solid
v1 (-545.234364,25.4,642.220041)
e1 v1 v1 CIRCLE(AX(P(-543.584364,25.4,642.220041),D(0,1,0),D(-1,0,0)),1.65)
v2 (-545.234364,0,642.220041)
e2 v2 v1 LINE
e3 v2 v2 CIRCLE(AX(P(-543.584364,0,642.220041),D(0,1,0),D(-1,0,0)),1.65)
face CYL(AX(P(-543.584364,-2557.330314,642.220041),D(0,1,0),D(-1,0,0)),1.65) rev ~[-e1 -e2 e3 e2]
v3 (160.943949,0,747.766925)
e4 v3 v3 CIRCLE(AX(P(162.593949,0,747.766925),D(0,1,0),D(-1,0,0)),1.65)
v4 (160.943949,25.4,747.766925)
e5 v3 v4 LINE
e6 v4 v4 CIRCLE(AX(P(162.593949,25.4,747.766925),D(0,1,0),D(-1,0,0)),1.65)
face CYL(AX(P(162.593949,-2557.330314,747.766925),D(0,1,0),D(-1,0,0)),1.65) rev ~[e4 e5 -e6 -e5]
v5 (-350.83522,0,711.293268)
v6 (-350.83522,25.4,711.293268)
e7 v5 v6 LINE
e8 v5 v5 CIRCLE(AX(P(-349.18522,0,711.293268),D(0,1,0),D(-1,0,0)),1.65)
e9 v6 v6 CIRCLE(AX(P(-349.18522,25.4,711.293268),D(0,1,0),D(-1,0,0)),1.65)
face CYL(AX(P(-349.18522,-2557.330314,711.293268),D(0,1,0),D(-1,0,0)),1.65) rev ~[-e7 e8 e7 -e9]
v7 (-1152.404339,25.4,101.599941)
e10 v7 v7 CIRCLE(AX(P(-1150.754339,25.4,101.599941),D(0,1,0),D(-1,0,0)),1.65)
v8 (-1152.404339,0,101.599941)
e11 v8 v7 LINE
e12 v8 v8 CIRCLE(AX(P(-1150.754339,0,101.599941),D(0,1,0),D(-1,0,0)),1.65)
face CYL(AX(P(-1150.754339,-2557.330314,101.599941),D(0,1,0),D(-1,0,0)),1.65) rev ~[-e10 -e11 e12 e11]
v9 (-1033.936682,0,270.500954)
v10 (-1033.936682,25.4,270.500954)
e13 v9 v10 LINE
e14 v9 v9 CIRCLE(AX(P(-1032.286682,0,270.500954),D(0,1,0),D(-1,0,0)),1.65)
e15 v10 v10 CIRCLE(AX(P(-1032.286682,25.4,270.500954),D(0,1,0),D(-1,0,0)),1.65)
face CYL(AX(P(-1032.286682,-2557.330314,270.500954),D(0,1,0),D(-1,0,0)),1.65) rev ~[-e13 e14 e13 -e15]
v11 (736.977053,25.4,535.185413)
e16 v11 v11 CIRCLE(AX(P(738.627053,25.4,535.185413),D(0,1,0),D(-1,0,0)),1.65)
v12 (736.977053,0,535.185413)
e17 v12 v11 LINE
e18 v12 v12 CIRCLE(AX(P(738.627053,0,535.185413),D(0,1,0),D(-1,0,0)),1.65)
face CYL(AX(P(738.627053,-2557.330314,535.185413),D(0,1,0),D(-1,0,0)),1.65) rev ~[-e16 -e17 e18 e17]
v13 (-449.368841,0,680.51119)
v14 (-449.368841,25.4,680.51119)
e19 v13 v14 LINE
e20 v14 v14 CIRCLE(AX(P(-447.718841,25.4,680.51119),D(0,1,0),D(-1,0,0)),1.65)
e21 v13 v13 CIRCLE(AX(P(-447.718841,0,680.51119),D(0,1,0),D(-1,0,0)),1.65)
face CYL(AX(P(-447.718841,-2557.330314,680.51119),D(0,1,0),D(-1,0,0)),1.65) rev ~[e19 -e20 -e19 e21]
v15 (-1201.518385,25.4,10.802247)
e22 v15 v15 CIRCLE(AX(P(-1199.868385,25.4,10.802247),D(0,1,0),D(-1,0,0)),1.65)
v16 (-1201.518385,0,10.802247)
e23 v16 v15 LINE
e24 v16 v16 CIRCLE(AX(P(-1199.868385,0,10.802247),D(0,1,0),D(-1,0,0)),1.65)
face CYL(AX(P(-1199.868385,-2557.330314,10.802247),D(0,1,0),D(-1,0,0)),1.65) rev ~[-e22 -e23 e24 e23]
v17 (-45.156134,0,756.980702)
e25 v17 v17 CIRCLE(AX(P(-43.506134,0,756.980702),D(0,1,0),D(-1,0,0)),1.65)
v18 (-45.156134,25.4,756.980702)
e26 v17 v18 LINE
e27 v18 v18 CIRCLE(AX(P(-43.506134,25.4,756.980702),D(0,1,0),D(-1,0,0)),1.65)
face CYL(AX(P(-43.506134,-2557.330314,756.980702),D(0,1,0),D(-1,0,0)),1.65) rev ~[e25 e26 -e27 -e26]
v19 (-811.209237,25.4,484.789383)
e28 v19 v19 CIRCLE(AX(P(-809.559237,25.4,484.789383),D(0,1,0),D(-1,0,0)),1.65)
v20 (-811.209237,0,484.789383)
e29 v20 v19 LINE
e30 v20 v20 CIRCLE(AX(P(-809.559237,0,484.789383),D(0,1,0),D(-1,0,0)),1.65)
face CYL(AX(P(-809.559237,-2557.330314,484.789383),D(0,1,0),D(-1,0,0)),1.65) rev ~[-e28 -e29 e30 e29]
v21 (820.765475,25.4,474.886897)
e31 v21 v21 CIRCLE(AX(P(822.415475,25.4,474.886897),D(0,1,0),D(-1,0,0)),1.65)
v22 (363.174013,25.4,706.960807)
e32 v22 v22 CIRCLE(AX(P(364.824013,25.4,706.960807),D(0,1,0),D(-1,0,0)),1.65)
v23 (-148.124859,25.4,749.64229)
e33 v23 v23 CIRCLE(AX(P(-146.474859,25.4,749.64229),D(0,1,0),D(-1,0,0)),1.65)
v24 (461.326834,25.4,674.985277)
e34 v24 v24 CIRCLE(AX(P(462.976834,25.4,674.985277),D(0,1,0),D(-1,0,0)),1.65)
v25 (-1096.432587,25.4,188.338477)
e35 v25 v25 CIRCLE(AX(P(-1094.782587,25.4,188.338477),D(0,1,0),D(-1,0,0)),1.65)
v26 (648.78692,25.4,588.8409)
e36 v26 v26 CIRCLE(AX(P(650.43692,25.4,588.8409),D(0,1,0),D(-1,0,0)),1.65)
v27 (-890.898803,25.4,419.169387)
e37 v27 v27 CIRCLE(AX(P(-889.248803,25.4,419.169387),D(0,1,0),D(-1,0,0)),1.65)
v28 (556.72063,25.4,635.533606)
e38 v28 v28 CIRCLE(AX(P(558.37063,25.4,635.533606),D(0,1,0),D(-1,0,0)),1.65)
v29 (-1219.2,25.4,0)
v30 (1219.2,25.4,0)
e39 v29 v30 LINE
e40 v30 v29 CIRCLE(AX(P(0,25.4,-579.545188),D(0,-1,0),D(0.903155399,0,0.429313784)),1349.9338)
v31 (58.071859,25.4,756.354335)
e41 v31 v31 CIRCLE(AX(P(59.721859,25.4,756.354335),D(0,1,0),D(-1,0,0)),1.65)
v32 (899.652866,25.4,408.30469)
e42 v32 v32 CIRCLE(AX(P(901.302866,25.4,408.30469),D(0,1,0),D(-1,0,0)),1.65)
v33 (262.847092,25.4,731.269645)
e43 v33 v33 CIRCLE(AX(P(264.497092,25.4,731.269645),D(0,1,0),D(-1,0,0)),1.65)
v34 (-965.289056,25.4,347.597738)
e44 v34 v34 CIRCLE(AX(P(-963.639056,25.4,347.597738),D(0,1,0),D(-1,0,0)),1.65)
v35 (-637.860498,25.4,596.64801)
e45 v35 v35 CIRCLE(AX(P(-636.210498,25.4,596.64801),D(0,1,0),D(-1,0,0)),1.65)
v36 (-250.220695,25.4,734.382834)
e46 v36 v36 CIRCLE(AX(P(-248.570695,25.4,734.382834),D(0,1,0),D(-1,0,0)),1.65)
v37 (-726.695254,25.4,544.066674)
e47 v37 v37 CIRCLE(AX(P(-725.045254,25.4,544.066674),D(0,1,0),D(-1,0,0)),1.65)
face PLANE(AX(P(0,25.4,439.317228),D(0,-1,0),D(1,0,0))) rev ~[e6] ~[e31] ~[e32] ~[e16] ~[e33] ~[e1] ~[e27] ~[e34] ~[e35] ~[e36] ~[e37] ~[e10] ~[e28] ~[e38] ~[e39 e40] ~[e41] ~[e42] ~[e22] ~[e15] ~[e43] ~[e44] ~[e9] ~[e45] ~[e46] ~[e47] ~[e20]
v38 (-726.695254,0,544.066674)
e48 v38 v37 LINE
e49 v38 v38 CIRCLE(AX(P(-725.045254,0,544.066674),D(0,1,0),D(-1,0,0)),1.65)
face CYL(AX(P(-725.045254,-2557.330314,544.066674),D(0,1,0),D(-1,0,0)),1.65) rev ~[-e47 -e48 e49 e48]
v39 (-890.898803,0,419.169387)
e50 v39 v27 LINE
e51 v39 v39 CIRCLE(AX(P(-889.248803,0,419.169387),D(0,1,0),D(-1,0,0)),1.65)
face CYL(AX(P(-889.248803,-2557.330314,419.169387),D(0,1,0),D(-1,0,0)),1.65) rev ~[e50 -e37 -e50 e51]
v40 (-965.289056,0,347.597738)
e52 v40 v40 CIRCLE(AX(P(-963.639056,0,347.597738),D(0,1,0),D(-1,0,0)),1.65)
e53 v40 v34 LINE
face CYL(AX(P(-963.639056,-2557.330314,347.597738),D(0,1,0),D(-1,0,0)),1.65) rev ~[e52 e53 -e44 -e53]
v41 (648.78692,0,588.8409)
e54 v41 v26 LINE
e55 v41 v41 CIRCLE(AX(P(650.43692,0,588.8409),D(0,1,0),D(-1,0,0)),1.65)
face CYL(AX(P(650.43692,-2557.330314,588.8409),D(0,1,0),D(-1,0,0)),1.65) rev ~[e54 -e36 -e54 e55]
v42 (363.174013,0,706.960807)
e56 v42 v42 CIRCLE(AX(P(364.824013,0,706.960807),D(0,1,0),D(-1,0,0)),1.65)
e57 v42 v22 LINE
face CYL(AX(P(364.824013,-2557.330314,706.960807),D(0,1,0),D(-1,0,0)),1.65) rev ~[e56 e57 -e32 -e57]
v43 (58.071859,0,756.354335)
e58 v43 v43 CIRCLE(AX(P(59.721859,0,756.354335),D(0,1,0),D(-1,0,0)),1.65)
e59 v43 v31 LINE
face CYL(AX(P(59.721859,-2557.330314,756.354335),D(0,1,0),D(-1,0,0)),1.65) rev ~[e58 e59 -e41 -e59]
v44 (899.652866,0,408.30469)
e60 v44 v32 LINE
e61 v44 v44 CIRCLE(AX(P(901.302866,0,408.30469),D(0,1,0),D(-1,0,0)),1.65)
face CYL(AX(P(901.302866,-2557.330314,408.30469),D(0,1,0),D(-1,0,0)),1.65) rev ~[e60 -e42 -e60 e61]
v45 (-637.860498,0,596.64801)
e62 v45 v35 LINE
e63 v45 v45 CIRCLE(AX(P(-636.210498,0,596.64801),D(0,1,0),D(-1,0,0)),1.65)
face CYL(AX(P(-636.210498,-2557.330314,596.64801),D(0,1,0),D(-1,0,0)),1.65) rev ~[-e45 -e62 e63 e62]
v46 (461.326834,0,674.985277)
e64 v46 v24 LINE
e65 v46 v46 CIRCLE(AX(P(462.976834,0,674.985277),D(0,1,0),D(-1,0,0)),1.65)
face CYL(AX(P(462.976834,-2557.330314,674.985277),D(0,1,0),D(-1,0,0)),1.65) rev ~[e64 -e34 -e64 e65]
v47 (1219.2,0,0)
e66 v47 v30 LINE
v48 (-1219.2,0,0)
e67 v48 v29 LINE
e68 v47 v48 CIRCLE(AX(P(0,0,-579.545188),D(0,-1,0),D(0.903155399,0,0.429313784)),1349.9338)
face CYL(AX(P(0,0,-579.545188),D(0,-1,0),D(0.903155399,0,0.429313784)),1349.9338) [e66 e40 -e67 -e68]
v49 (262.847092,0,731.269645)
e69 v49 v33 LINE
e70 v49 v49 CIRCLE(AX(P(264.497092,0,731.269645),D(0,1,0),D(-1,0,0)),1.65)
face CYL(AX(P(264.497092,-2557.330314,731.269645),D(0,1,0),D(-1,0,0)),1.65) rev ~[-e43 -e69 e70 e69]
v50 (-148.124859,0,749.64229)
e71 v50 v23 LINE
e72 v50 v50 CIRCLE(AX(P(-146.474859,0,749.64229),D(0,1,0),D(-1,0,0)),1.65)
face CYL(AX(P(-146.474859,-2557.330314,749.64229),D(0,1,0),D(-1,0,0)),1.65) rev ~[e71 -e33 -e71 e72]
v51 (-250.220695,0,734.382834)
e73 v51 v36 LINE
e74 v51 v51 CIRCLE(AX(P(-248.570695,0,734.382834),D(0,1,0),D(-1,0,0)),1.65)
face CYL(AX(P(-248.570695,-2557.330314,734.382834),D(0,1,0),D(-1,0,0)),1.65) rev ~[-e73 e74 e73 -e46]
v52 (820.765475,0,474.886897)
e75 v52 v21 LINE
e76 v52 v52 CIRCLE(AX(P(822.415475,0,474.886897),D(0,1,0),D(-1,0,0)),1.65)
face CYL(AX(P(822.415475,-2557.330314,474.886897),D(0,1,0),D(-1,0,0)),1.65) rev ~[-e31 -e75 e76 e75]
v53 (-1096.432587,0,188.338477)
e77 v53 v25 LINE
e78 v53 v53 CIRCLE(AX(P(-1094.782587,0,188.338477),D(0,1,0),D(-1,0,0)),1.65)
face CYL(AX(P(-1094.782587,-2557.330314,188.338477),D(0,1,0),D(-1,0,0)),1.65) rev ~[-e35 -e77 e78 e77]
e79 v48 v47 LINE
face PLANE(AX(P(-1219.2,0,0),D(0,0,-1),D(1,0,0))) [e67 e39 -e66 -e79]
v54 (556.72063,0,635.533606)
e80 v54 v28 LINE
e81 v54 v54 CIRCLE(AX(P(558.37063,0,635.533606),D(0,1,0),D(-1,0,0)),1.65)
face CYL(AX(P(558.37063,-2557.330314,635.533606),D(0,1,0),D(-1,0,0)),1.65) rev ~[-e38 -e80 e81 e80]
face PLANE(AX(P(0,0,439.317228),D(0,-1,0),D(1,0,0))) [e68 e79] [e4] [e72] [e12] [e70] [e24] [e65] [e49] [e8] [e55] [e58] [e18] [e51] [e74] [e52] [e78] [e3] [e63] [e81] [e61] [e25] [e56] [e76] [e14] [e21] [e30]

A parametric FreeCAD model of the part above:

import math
import FreeCAD as App
import Part
import Sketcher
from FreeCAD import Vector
Q = App.Units.Quantity

doc = App.newDocument("Part")
params = doc.addObject("Spreadsheet::Sheet", "Params")
for row, (alias, value) in enumerate([
    ("sketch1_width", "96 in"),
    ("sketch1_radius", "53.147 in"),
    ("pad1_length", "1 in"),
    ("hole_diameter", "3.3 mm"),
], start=1):
    params.set(f"A{row}", alias)
    params.set(f"B{row}", "=" + value)
    params.setAlias(f"B{row}", alias)

body = doc.addObject("PartDesign::Body", "Body")

# Sketch on XZ plane
sketch1 = doc.addObject("Sketcher::SketchObject", "Sketch")
body.addObject(sketch1)
sketch1.AttachmentSupport = (doc.XZ_Plane, [""])
sketch1.MapMode = "FlatFace"
sketch1.addGeometry(Part.ArcOfCircle(Part.Circle(Vector(0, -579.545188, 0), Vector(0, 0, 1), 1349.9338), math.radians(25.424019), math.radians(154.575981)), False)
sketch1.addGeometry(Part.LineSegment(Vector(-1219.2, 0, 0), Vector(1219.2, 0, 0)), False)
sketch1.addConstraint(Sketcher.Constraint("Coincident", 0, 1, 1, 2))
sketch1.addConstraint(Sketcher.Constraint("Coincident", 1, 1, 0, 2))
sketch1.addConstraint(Sketcher.Constraint("Horizontal", 1))
sketch1.addConstraint(Sketcher.Constraint("PointOnObject", 0, 3, -2))
sketch1.addConstraint(Sketcher.Constraint("PointOnObject", 1, 1, -1))
sketch1.addConstraint(Sketcher.Constraint("DistanceX", 1, 1, 1, 2, Q("96 in")))
sketch1.addConstraint(Sketcher.Constraint("Radius", 0, Q("53.147 in")))
sketch1.setExpression("Constraints[5]", "Params.sketch1_width")
sketch1.setExpression("Constraints[6]", "Params.sketch1_radius")
pad1 = doc.addObject("PartDesign::Pad", "Pad")
body.addObject(pad1)
pad1.Profile = sketch1
pad1.setExpression("Length", "Params.pad1_length")
pad1.Reversed = True

# Sketch on XZ plane
sketch2 = doc.addObject("Sketcher::SketchObject", "Sketch001")
body.addObject(sketch2)
sketch2.AttachmentSupport = (doc.XZ_Plane, [""])
sketch2.MapMode = "FlatFace"
sketch2.addGeometry(Part.Circle(Vector(-1199.868385, 10.802247, 0), Vector(0, 0, 1), 1.65), False)
sketch2.addGeometry(Part.Circle(Vector(-1150.754339, 101.599941, 0), Vector(0, 0, 1), 1.65), False)
sketch2.addGeometry(Part.Circle(Vector(-1094.782587, 188.338477, 0), Vector(0, 0, 1), 1.65), False)
sketch2.addGeometry(Part.Circle(Vector(-1032.286682, 270.500954, 0), Vector(0, 0, 1), 1.65), False)
sketch2.addGeometry(Part.Circle(Vector(-963.639056, 347.597738, 0), Vector(0, 0, 1), 1.65), False)
sketch2.addGeometry(Part.Circle(Vector(-889.248803, 419.169387, 0), Vector(0, 0, 1), 1.65), False)
sketch2.addGeometry(Part.Circle(Vector(-809.559237, 484.789383, 0), Vector(0, 0, 1), 1.65), False)
sketch2.addGeometry(Part.Circle(Vector(-725.045254, 544.066674, 0), Vector(0, 0, 1), 1.65), False)
sketch2.addGeometry(Part.Circle(Vector(-636.210498, 596.64801, 0), Vector(0, 0, 1), 1.65), False)
sketch2.addGeometry(Part.Circle(Vector(-543.584364, 642.220041, 0), Vector(0, 0, 1), 1.65), False)
sketch2.addGeometry(Part.Circle(Vector(-447.718841, 680.51119, 0), Vector(0, 0, 1), 1.65), False)
sketch2.addGeometry(Part.Circle(Vector(-349.18522, 711.293268, 0), Vector(0, 0, 1), 1.65), False)
sketch2.addGeometry(Part.Circle(Vector(-248.570695, 734.382834, 0), Vector(0, 0, 1), 1.65), False)
sketch2.addGeometry(Part.Circle(Vector(-146.474859, 749.64229, 0), Vector(0, 0, 1), 1.65), False)
sketch2.addGeometry(Part.Circle(Vector(-43.506134, 756.980702, 0), Vector(0, 0, 1), 1.65), False)
sketch2.addGeometry(Part.Circle(Vector(59.721859, 756.354335, 0), Vector(0, 0, 1), 1.65), False)
sketch2.addGeometry(Part.Circle(Vector(162.593949, 747.766925, 0), Vector(0, 0, 1), 1.65), False)
sketch2.addGeometry(Part.Circle(Vector(264.497092, 731.269645, 0), Vector(0, 0, 1), 1.65), False)
sketch2.addGeometry(Part.Circle(Vector(364.824013, 706.960807, 0), Vector(0, 0, 1), 1.65), False)
sketch2.addGeometry(Part.Circle(Vector(462.976834, 674.985277, 0), Vector(0, 0, 1), 1.65), False)
sketch2.addGeometry(Part.Circle(Vector(558.37063, 635.533606, 0), Vector(0, 0, 1), 1.65), False)
sketch2.addGeometry(Part.Circle(Vector(650.43692, 588.8409, 0), Vector(0, 0, 1), 1.65), False)
sketch2.addGeometry(Part.Circle(Vector(738.627053, 535.185413, 0), Vector(0, 0, 1), 1.65), False)
sketch2.addGeometry(Part.Circle(Vector(822.415475, 474.886897, 0), Vector(0, 0, 1), 1.65), False)
sketch2.addGeometry(Part.Circle(Vector(901.302866, 408.30469, 0), Vector(0, 0, 1), 1.65), False)
sketch2.addConstraint(Sketcher.Constraint("Equal", 0, 1))
sketch2.addConstraint(Sketcher.Constraint("Equal", 1, 2))
sketch2.addConstraint(Sketcher.Constraint("Equal", 2, 3))
sketch2.addConstraint(Sketcher.Constraint("Equal", 3, 4))
sketch2.addConstraint(Sketcher.Constraint("Equal", 4, 5))
sketch2.addConstraint(Sketcher.Constraint("Equal", 5, 6))
sketch2.addConstraint(Sketcher.Constraint("Equal", 6, 7))
sketch2.addConstraint(Sketcher.Constraint("Equal", 7, 8))
sketch2.addConstraint(Sketcher.Constraint("Equal", 8, 9))
sketch2.addConstraint(Sketcher.Constraint("Equal", 9, 10))
sketch2.addConstraint(Sketcher.Constraint("Equal", 10, 11))
sketch2.addConstraint(Sketcher.Constraint("Equal", 11, 12))
sketch2.addConstraint(Sketcher.Constraint("Equal", 12, 13))
sketch2.addConstraint(Sketcher.Constraint("Equal", 13, 14))
sketch2.addConstraint(Sketcher.Constraint("Equal", 14, 15))
sketch2.addConstraint(Sketcher.Constraint("Equal", 15, 16))
sketch2.addConstraint(Sketcher.Constraint("Equal", 16, 17))
sketch2.addConstraint(Sketcher.Constraint("Equal", 17, 18))
sketch2.addConstraint(Sketcher.Constraint("Equal", 18, 19))
sketch2.addConstraint(Sketcher.Constraint("Equal", 19, 20))
sketch2.addConstraint(Sketcher.Constraint("Equal", 20, 21))
sketch2.addConstraint(Sketcher.Constraint("Equal", 21, 22))
sketch2.addConstraint(Sketcher.Constraint("Equal", 22, 23))
sketch2.addConstraint(Sketcher.Constraint("Equal", 23, 24))
sketch2.addConstraint(Sketcher.Constraint("Diameter", 0, 3.3))
sketch2.addConstraint(Sketcher.Constraint("DistanceY", 8, 3, 10, 3, Q("3.3017 in")))
sketch2.addConstraint(Sketcher.Constraint("DistanceX", 8, 3, -1, 1, 636.210498))
sketch2.addConstraint(Sketcher.Constraint("DistanceY", -1, 1, 14, 3, 756.980702))
sketch2.addConstraint(Sketcher.Constraint("DistanceY", -1, 1, 21, 3, 588.8409))
sketch2.addConstraint(Sketcher.Constraint("DistanceX", 0, 3, 2, 3, 105.085798))
sketch2.addConstraint(Sketcher.Constraint("DistanceY", 10, 3, 13, 3, 69.1311))
sketch2.addConstraint(Sketcher.Constraint("DistanceY", 12, 3, 15, 3, 21.971502))
sketch2.addConstraint(Sketcher.Constraint("DistanceX", 10, 3, 15, 3, 507.440699))
sketch2.addConstraint(Sketcher.Constraint("DistanceY", 20, 3, 18, 3, 71.427201))
sketch2.addConstraint(Sketcher.Constraint("DistanceX", 1, 3, -1, 1, 1150.754339))
sketch2.addConstraint(Sketcher.Constraint("DistanceY", -1, 1, 1, 3, 101.599941))
sketch2.addConstraint(Sketcher.Constraint("DistanceX", 3, 3, -1, 1, 1032.286682))
sketch2.addConstraint(Sketcher.Constraint("DistanceY", -1, 1, 4, 3, 347.597738))
sketch2.addConstraint(Sketcher.Constraint("DistanceY", -1, 1, 8, 3, 596.64801))
sketch2.addConstraint(Sketcher.Constraint("DistanceY", -1, 1, 9, 3, 642.220041))
sketch2.addConstraint(Sketcher.Constraint("DistanceX", 10, 3, -1, 1, 447.718841))
sketch2.addConstraint(Sketcher.Constraint("DistanceX", 11, 3, -1, 1, 349.18522))
sketch2.addConstraint(Sketcher.Constraint("DistanceX", 13, 3, -1, 1, 146.474859))
sketch2.addConstraint(Sketcher.Constraint("DistanceX", -1, 1, 16, 3, 162.593949))
sketch2.addConstraint(Sketcher.Constraint("DistanceX", -1, 1, 17, 3, 264.497092))
sketch2.addConstraint(Sketcher.Constraint("DistanceX", -1, 1, 20, 3, 558.37063))
sketch2.addConstraint(Sketcher.Constraint("DistanceX", -1, 1, 21, 3, 650.43692))
sketch2.addConstraint(Sketcher.Constraint("DistanceY", -1, 1, 24, 3, 408.30469))
sketch2.addConstraint(Sketcher.Constraint("DistanceY", 0, 3, 2, 3, 177.53623))
sketch2.addConstraint(Sketcher.Constraint("DistanceX", 2, 3, 4, 3, 131.143531))
sketch2.addConstraint(Sketcher.Constraint("DistanceY", 2, 3, 4, 3, 159.259261))
sketch2.addConstraint(Sketcher.Constraint("DistanceY", 4, 3, 5, 3, 71.571649))
sketch2.addConstraint(Sketcher.Constraint("DistanceX", 3, 3, 5, 3, 143.037879))
sketch2.addConstraint(Sketcher.Constraint("DistanceX", 4, 3, 6, 3, 154.079819))
sketch2.addConstraint(Sketcher.Constraint("DistanceY", 3, 3, 6, 3, 214.288429))
sketch2.addConstraint(Sketcher.Constraint("DistanceY", 1, 3, 6, 3, 383.189442))
sketch2.addConstraint(Sketcher.Constraint("DistanceY", 6, 3, 7, 3, 59.277292))
sketch2.addConstraint(Sketcher.Constraint("DistanceX", 5, 3, 7, 3, 164.203549))
sketch2.addConstraint(Sketcher.Constraint("DistanceX", 6, 3, 8, 3, 173.348739))
sketch2.addConstraint(Sketcher.Constraint("DistanceX", 7, 3, 9, 3, 181.460889))
sketch2.addConstraint(Sketcher.Constraint("DistanceX", 9, 3, 12, 3, 295.013669))
sketch2.addConstraint(Sketcher.Constraint("DistanceY", 7, 3, 12, 3, 190.31616))
sketch2.addConstraint(Sketcher.Constraint("DistanceX", 12, 3, 14, 3, 205.064561))
sketch2.addConstraint(Sketcher.Constraint("DistanceY", 16, 3, 15, 3, 8.587411))
sketch2.addConstraint(Sketcher.Constraint("DistanceY", 17, 3, 16, 3, 16.49728))
sketch2.addConstraint(Sketcher.Constraint("DistanceX", 17, 3, 18, 3, 100.326921))
sketch2.addConstraint(Sketcher.Constraint("DistanceX", 18, 3, 19, 3, 98.152821))
sketch2.addConstraint(Sketcher.Constraint("DistanceY", 19, 3, 18, 3, 31.97553))
sketch2.addConstraint(Sketcher.Constraint("DistanceY", 19, 3, 15, 3, 81.369058))
sketch2.addConstraint(Sketcher.Constraint("DistanceX", 19, 3, 22, 3, 275.650219))
sketch2.addConstraint(Sketcher.Constraint("DistanceY", 22, 3, 17, 3, 196.084231))
sketch2.addConstraint(Sketcher.Constraint("DistanceY", 23, 3, 20, 3, 160.646709))
sketch2.addConstraint(Sketcher.Constraint("DistanceX", 19, 3, 23, 3, 359.438642))
sketch2.addConstraint(Sketcher.Constraint("DistanceX", 23, 3, 24, 3, 78.88739))
sketch2.addConstraint(Sketcher.Constraint("DistanceY", -1, 1, 11, 3, 711.293268))
doc.recompute()
hole = doc.addObject("PartDesign::Hole", "Hole")
body.addObject(hole)
hole.Profile = sketch2
hole.ThreadType = "None"
hole.setExpression("Diameter", "Params.hole_diameter")
hole.DepthType = "ThroughAll"

doc.recompute()
